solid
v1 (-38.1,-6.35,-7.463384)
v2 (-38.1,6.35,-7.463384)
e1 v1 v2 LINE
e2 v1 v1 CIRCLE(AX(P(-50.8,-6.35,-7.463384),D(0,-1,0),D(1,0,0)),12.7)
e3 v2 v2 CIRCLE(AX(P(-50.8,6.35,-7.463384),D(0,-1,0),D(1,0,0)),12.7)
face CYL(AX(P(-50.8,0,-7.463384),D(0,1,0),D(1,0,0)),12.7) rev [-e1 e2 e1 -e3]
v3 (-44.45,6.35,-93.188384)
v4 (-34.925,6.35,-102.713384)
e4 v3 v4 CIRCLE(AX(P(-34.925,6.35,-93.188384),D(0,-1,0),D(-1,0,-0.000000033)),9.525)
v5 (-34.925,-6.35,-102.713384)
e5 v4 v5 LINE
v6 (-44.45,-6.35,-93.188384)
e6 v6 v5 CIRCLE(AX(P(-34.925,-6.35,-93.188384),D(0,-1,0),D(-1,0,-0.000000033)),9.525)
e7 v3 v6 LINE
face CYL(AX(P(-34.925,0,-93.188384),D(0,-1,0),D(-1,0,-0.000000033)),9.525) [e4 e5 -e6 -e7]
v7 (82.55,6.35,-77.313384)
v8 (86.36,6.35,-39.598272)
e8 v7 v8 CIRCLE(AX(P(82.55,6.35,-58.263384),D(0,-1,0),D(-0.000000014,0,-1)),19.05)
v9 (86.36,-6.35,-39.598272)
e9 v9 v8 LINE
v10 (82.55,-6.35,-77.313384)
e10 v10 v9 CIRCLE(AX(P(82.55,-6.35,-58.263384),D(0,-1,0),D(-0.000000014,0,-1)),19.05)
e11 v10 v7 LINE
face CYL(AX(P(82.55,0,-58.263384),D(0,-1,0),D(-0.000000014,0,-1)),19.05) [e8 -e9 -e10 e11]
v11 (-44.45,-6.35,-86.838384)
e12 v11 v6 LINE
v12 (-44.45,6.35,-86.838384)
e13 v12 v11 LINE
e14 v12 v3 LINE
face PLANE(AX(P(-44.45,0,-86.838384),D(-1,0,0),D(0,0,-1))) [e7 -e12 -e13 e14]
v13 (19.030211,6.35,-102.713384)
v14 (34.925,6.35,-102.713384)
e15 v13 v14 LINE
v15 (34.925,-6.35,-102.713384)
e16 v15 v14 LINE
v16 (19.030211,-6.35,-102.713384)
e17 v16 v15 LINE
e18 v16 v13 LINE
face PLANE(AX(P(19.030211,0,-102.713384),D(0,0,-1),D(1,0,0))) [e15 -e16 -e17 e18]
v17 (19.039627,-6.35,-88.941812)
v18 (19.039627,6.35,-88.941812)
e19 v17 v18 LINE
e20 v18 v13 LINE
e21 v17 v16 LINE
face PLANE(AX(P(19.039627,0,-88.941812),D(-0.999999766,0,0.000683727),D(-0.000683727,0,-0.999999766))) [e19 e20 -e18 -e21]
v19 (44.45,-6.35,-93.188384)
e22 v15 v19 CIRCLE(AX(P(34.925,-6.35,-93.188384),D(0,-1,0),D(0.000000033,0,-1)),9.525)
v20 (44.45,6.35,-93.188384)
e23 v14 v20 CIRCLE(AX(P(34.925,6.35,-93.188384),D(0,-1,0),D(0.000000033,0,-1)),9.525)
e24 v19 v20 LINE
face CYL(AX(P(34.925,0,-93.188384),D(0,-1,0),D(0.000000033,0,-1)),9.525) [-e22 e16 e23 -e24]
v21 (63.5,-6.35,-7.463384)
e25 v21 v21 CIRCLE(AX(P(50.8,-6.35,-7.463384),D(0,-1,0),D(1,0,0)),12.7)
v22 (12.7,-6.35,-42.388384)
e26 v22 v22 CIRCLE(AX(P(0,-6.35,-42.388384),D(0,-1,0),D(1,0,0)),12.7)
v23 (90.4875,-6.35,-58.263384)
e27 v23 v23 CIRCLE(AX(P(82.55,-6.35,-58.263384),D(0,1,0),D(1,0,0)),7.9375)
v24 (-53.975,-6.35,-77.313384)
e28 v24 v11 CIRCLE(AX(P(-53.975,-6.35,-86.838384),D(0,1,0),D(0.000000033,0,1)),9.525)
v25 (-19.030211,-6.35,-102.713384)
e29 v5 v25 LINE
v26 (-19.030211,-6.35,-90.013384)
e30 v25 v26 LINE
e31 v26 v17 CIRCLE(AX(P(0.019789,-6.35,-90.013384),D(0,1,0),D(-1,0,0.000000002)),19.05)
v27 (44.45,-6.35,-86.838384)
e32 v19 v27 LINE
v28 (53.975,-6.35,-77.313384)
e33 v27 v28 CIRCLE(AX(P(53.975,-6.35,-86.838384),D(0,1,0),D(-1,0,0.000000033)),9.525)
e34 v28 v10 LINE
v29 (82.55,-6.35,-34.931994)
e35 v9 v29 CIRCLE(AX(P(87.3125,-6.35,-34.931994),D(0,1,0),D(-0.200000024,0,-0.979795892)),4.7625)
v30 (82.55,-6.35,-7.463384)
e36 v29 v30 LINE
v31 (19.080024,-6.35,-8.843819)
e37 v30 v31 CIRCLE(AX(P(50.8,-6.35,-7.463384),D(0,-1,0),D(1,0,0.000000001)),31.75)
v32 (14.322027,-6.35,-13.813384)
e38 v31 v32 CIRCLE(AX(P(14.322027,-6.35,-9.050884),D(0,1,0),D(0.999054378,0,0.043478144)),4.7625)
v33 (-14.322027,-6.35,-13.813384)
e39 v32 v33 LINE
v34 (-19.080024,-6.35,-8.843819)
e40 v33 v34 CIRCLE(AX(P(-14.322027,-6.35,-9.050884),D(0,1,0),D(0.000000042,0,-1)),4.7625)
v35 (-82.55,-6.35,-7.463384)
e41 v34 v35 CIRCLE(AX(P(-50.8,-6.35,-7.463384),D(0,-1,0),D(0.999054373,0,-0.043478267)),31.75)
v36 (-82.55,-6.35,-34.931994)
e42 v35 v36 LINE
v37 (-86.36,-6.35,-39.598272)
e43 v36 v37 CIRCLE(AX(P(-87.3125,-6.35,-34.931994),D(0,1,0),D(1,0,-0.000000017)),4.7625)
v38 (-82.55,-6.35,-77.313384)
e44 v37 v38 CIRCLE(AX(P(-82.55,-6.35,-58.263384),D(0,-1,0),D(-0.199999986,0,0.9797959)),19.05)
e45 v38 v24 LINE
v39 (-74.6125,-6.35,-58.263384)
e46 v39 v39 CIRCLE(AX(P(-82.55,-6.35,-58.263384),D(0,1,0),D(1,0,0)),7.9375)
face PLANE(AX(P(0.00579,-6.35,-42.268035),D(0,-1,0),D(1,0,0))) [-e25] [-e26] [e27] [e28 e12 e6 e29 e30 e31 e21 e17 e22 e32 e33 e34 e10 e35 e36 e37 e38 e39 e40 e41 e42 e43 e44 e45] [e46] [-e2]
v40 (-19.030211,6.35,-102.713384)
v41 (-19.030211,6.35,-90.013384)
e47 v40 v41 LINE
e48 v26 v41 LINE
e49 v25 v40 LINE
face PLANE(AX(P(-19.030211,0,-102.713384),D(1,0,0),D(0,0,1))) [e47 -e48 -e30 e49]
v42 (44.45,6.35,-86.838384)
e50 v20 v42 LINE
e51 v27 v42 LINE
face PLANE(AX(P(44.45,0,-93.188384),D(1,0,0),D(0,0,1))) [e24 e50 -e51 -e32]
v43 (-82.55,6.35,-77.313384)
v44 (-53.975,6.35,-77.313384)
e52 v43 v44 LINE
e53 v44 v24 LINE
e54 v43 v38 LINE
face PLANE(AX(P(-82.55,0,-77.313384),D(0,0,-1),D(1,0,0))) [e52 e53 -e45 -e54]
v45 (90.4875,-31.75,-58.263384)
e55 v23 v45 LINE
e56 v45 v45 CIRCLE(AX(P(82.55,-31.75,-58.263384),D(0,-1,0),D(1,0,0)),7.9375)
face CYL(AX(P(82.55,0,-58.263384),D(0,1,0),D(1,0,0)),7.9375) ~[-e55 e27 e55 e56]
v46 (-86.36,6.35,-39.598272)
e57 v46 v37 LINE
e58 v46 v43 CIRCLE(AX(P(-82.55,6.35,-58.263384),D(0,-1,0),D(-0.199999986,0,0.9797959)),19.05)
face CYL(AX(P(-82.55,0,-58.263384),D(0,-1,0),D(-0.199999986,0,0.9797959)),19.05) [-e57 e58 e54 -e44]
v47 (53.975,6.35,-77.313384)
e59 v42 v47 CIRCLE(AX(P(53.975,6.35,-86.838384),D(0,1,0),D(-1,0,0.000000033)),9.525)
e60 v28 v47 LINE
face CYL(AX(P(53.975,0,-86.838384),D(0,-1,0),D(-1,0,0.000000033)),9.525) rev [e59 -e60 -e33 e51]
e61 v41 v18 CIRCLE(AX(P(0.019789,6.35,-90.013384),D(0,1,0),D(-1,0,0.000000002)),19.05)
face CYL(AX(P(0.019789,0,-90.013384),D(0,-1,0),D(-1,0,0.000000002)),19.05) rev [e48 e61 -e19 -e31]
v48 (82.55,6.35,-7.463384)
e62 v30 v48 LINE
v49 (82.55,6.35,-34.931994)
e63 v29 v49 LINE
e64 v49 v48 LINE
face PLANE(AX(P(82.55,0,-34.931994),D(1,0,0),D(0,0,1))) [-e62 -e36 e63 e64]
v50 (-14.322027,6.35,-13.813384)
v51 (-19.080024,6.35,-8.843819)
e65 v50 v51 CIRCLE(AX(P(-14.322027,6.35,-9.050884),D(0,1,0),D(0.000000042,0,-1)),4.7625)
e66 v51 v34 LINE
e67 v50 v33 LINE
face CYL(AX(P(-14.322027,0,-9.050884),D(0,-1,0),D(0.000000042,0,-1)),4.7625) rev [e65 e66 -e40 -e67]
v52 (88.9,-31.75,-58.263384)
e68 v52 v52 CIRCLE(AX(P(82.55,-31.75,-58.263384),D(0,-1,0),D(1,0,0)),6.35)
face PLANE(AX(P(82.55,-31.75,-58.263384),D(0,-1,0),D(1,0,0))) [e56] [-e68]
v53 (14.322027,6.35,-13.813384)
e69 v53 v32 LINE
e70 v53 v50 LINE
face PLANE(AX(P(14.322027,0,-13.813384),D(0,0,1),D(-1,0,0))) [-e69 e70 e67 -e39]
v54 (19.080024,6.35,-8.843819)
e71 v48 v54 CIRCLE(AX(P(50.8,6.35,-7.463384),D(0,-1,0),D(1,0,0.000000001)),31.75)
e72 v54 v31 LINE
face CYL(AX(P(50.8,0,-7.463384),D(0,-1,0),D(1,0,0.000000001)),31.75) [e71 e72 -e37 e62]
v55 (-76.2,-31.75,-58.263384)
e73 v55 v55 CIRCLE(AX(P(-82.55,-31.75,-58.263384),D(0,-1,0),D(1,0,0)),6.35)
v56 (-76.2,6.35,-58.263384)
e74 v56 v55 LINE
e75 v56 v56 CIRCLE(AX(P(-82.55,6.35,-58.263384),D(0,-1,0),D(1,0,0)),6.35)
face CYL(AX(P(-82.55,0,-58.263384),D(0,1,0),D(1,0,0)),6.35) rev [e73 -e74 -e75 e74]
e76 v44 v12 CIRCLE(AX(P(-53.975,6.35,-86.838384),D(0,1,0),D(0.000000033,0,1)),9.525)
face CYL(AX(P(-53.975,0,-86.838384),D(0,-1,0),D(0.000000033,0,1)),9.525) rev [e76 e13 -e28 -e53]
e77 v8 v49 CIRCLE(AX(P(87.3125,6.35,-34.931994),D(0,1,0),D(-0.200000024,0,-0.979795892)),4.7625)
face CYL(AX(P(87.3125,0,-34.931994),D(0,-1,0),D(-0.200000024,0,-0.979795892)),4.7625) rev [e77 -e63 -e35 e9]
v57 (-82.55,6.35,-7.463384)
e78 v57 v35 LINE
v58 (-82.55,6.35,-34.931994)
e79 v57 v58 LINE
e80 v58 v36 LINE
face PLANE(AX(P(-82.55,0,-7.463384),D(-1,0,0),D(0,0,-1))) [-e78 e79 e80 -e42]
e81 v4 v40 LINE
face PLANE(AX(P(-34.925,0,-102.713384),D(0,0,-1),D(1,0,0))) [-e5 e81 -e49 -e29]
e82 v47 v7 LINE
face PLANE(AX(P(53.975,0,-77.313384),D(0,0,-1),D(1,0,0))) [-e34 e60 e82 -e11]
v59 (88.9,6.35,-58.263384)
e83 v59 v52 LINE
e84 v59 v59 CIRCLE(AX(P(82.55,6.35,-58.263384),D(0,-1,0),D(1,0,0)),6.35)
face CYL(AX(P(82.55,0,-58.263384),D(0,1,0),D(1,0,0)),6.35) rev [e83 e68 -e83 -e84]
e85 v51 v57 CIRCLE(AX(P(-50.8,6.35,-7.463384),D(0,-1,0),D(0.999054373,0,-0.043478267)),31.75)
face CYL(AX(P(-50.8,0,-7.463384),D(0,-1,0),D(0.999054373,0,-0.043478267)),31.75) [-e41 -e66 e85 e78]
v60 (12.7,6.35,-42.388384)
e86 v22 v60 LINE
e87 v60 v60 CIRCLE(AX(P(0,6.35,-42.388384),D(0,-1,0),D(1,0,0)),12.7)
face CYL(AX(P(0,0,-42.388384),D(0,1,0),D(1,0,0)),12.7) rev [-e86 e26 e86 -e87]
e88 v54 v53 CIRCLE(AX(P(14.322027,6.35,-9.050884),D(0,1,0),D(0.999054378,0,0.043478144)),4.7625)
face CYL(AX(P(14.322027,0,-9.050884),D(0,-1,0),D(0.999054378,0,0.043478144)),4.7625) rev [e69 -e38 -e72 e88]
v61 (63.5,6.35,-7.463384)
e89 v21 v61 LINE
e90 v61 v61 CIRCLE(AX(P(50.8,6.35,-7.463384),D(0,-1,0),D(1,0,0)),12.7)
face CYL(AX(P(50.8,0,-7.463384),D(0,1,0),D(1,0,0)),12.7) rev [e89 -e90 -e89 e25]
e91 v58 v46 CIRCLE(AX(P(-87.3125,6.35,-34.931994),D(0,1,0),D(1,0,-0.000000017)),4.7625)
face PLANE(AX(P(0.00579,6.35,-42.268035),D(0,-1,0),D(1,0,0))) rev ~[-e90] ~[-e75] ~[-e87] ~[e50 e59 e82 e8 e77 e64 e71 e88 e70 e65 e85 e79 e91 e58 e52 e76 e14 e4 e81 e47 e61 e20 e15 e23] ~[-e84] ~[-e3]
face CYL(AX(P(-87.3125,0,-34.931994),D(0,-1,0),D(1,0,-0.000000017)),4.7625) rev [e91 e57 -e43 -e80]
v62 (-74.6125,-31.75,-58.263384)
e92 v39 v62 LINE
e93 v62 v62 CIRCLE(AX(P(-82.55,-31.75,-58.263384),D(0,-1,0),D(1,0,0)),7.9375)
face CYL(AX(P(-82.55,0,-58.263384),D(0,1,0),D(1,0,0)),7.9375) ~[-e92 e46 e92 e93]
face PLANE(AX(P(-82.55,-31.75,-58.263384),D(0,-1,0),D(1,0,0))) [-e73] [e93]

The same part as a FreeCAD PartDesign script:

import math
import FreeCAD as App
import Part
import Sketcher
from FreeCAD import Vector
Q = App.Units.Quantity

doc = App.newDocument("Part")
body = doc.addObject("PartDesign::Body", "Body")

# Sketch on XZ plane
sketch1 = doc.addObject("Sketcher::SketchObject", "Sketch")
body.addObject(sketch1)
sketch1.AttachmentSupport = (doc.XZ_Plane, [""])
sketch1.MapMode = "FlatFace"
sketch1.addGeometry(Part.ArcOfCircle(Part.Circle(Vector(50.8, -7.5, 0), Vector(0, 0, 1), 31.7), math.radians(0), math.radians(182)), False)
sketch1.addGeometry(Part.ArcOfCircle(Part.Circle(Vector(14.3, -9.1, 0), Vector(0, 0, 1), 4.8), math.radians(-90), math.radians(2)), False)
sketch1.addGeometry(Part.LineSegment(Vector(14.3, -13.8, 0), Vector(-14.3, -13.8, 0)), False)
sketch1.addGeometry(Part.ArcOfCircle(Part.Circle(Vector(-14.3, -9.1, 0), Vector(0, 0, 1), 4.8), math.radians(178), math.radians(270)), False)
sketch1.addGeometry(Part.ArcOfCircle(Part.Circle(Vector(-50.8, -7.5, 0), Vector(0, 0, 1), 31.7), math.radians(-2), math.radians(180)), False)
sketch1.addGeometry(Part.LineSegment(Vector(-82.5, -7.5, 0), Vector(-82.5, -34.9, 0)), False)
sketch1.addGeometry(Part.ArcOfCircle(Part.Circle(Vector(-87.3, -34.9, 0), Vector(0, 0, 1), 4.8), math.radians(-78), math.radians(0)), False)
sketch1.addGeometry(Part.ArcOfCircle(Part.Circle(Vector(-82.6, -58.3, 0), Vector(0, 0, 1), 19.1), math.radians(102), math.radians(270)), False)
sketch1.addGeometry(Part.LineSegment(Vector(-82.5, -77.3, 0), Vector(-54, -77.3, 0)), False)
sketch1.addGeometry(Part.ArcOfCircle(Part.Circle(Vector(-54, -86.8, 0), Vector(0, 0, 1), 9.5), math.radians(0), math.radians(90)), False)
sketch1.addGeometry(Part.LineSegment(Vector(-44.5, -86.8, 0), Vector(-44.5, -93.2, 0)), False)
sketch1.addGeometry(Part.ArcOfCircle(Part.Circle(Vector(-34.9, -93.2, 0), Vector(0, 0, 1), 9.5), math.radians(-180), math.radians(-90)), False)
sketch1.addGeometry(Part.LineSegment(Vector(-34.9, -102.7, 0), Vector(-19, -102.7, 0)), False)
sketch1.addGeometry(Part.LineSegment(Vector(-19, -102.7, 0), Vector(-19, -90, 0)), False)
sketch1.addGeometry(Part.ArcOfCircle(Part.Circle(Vector(0, -90, 0), Vector(0, 0, 1), 19.1), math.radians(3), math.radians(180)), False)
sketch1.addGeometry(Part.LineSegment(Vector(19, -88.9, 0), Vector(19, -102.7, 0)), False)
sketch1.addGeometry(Part.LineSegment(Vector(19, -102.7, 0), Vector(34.9, -102.7, 0)), False)
sketch1.addGeometry(Part.ArcOfCircle(Part.Circle(Vector(34.9, -93.2, 0), Vector(0, 0, 1), 9.5), math.radians(-90), math.radians(0)), False)
sketch1.addGeometry(Part.LineSegment(Vector(44.5, -93.2, 0), Vector(44.5, -86.8, 0)), False)
sketch1.addGeometry(Part.ArcOfCircle(Part.Circle(Vector(54, -86.8, 0), Vector(0, 0, 1), 9.5), math.radians(90), math.radians(180)), False)
sketch1.addGeometry(Part.LineSegment(Vector(54, -77.3, 0), Vector(82.5, -77.3, 0)), False)
sketch1.addGeometry(Part.ArcOfCircle(Part.Circle(Vector(82.6, -58.3, 0), Vector(0, 0, 1), 19.1), math.radians(-90), math.radians(78)), False)
sketch1.addGeometry(Part.ArcOfCircle(Part.Circle(Vector(87.3, -34.9, 0), Vector(0, 0, 1), 4.8), math.radians(-180), math.radians(-102)), False)
sketch1.addGeometry(Part.LineSegment(Vector(82.5, -34.9, 0), Vector(82.5, -7.5, 0)), False)
sketch1.addGeometry(Part.Circle(Vector(-82.5, -58.3, 0), Vector(0, 0, 1), 6.3), False)
sketch1.addGeometry(Part.Circle(Vector(82.5, -58.3, 0), Vector(0, 0, 1), 6.3), False)
sketch1.addGeometry(Part.Circle(Vector(0, -42.4, 0), Vector(0, 0, 1), 12.7), False)
sketch1.addGeometry(Part.Circle(Vector(-50.8, -7.5, 0), Vector(0, 0, 1), 12.7), False)
sketch1.addGeometry(Part.Circle(Vector(50.8, -7.5, 0), Vector(0, 0, 1), 12.7), False)
sketch1.addConstraint(Sketcher.Constraint("Tangent", 0, 2, 1, 2))
sketch1.addConstraint(Sketcher.Constraint("Tangent", 1, 1, 2, 1))
sketch1.addConstraint(Sketcher.Constraint("Tangent", 2, 2, 3, 2))
sketch1.addConstraint(Sketcher.Constraint("Tangent", 3, 1, 4, 1))
sketch1.addConstraint(Sketcher.Constraint("Tangent", 4, 2, 5, 1))
sketch1.addConstraint(Sketcher.Constraint("Tangent", 5, 2, 6, 2))
sketch1.addConstraint(Sketcher.Constraint("Tangent", 6, 1, 7, 1))
sketch1.addConstraint(Sketcher.Constraint("Tangent", 7, 2, 8, 1))
sketch1.addConstraint(Sketcher.Constraint("Tangent", 8, 2, 9, 2))
sketch1.addConstraint(Sketcher.Constraint("Tangent", 9, 1, 10, 1))
sketch1.addConstraint(Sketcher.Constraint("Tangent", 10, 2, 11, 1))
sketch1.addConstraint(Sketcher.Constraint("Tangent", 11, 2, 12, 1))
sketch1.addConstraint(Sketcher.Constraint("Coincident", 12, 2, 13, 1))
sketch1.addConstraint(Sketcher.Constraint("Tangent", 13, 2, 14, 2))
sketch1.addConstraint(Sketcher.Constraint("Coincident", 14, 1, 15, 1))
sketch1.addConstraint(Sketcher.Constraint("Coincident", 15, 2, 16, 1))
sketch1.addConstraint(Sketcher.Constraint("Tangent", 16, 2, 17, 1))
sketch1.addConstraint(Sketcher.Constraint("Tangent", 17, 2, 18, 1))
sketch1.addConstraint(Sketcher.Constraint("Tangent", 18, 2, 19, 2))
sketch1.addConstraint(Sketcher.Constraint("Tangent", 19, 1, 20, 1))
sketch1.addConstraint(Sketcher.Constraint("Tangent", 20, 2, 21, 1))
sketch1.addConstraint(Sketcher.Constraint("Tangent", 21, 2, 22, 2))
sketch1.addConstraint(Sketcher.Constraint("Tangent", 22, 1, 23, 1))
sketch1.addConstraint(Sketcher.Constraint("Tangent", 23, 2, 0, 1))
sketch1.addConstraint(Sketcher.Constraint("Horizontal", 2))
sketch1.addConstraint(Sketcher.Constraint("Vertical", 5))
sketch1.addConstraint(Sketcher.Constraint("Horizontal", 8))
sketch1.addConstraint(Sketcher.Constraint("Vertical", 10))
sketch1.addConstraint(Sketcher.Constraint("Horizontal", 12))
sketch1.addConstraint(Sketcher.Constraint("Vertical", 13))
sketch1.addConstraint(Sketcher.Constraint("Horizontal", 16))
sketch1.addConstraint(Sketcher.Constraint("Vertical", 18))
sketch1.addConstraint(Sketcher.Constraint("Horizontal", 20))
sketch1.addConstraint(Sketcher.Constraint("Vertical", 23))
sketch1.addConstraint(Sketcher.Constraint("Coincident", 24, 3, 7, 3))
sketch1.addConstraint(Sketcher.Constraint("Coincident", 25, 3, 21, 3))
sketch1.addConstraint(Sketcher.Constraint("Coincident", 27, 3, 4, 3))
sketch1.addConstraint(Sketcher.Constraint("Coincident", 28, 3, 0, 3))
sketch1.addConstraint(Sketcher.Constraint("Equal", 1, 3))
sketch1.addConstraint(Sketcher.Constraint("Equal", 0, 4))
sketch1.addConstraint(Sketcher.Constraint("Equal", 3, 6))
sketch1.addConstraint(Sketcher.Constraint("Equal", 9, 11))
sketch1.addConstraint(Sketcher.Constraint("Equal", 7, 14))
sketch1.addConstraint(Sketcher.Constraint("Equal", 11, 17))
sketch1.addConstraint(Sketcher.Constraint("Equal", 17, 19))
sketch1.addConstraint(Sketcher.Constraint("Equal", 14, 21))
sketch1.addConstraint(Sketcher.Constraint("Equal", 6, 22))
sketch1.addConstraint(Sketcher.Constraint("Equal", 24, 25))
sketch1.addConstraint(Sketcher.Constraint("Equal", 26, 27))
sketch1.addConstraint(Sketcher.Constraint("Equal", 27, 28))
sketch1.addConstraint(Sketcher.Constraint("Symmetric", 0, 3, 4, 3, -2))
sketch1.addConstraint(Sketcher.Constraint("Symmetric", 11, 3, 17, 3, -2))
sketch1.addConstraint(Sketcher.Constraint("Symmetric", 7, 3, 21, 3, -2))
sketch1.addConstraint(Sketcher.Constraint("PointOnObject", 26, 3, -2))
sketch1.addConstraint(Sketcher.Constraint("Vertical", 24, 3, 4, 2))
sketch1.addConstraint(Sketcher.Constraint("Equal", 12, 16))
sketch1.addConstraint(Sketcher.Constraint("Diameter", 26, Q("1 in")))
sketch1.addConstraint(Sketcher.Constraint("Diameter", 24, Q("0.5 in")))
sketch1.addConstraint(Sketcher.Constraint("Radius", 0, Q("1.25 in")))
sketch1.addConstraint(Sketcher.Constraint("Radius", 7, Q("0.75 in")))
sketch1.addConstraint(Sketcher.Constraint("DistanceY", 13, 1, 13, 2, Q("0.5 in")))
sketch1.addConstraint(Sketcher.Constraint("DistanceX", -1, 1, 0, 3, Q("2 in")))
sketch1.addConstraint(Sketcher.Constraint("Radius", 1, Q("0.1875 in")))
sketch1.addConstraint(Sketcher.Constraint("Radius", 9, Q("0.375 in")))
sketch1.addConstraint(Sketcher.Constraint("DistanceY", 7, 3, 4, 3, Q("2 in")))
sketch1.addConstraint(Sketcher.Constraint("DistanceY", 11, 3, 26, 3, Q("2 in")))
sketch1.addConstraint(Sketcher.Constraint("DistanceY", 11, 2, 8, 2, Q("1 in")))
sketch1.addConstraint(Sketcher.Constraint("DistanceX", 9, 3, 17, 3, Q("3.5 in")))
sketch1.addConstraint(Sketcher.Constraint("DistanceY", 1, 1, 28, 3, Q("0.25 in")))
sketch1.addConstraint(Sketcher.Constraint("DistanceX", 12, 1, 12, 2, 15.894789))
sketch1.addConstraint(Sketcher.Constraint("DistanceY", 0, 2, -1, 1, 8.843819))
sketch1.addConstraint(Sketcher.Constraint("DistanceY", 14, 1, -1, 1, 88.941812))
pad1 = doc.addObject("PartDesign::Pad", "Pad")
body.addObject(pad1)
pad1.Profile = sketch1
pad1.Length = Q("0.5 in")
pad1.Midplane = True

# Sketch on XZ plane
sketch2 = doc.addObject("Sketcher::SketchObject", "Sketch001")
body.addObject(sketch2)
sketch2.AttachmentSupport = (doc.XZ_Plane, [""])
sketch2.MapMode = "FlatFace"
sketch2.addGeometry(Part.Circle(Vector(-83, -58, 0), Vector(0, 0, 1), 8), False)
sketch2.addGeometry(Part.Circle(Vector(-83, -58, 0), Vector(0, 0, 1), 6), False)
sketch2.addGeometry(Part.Circle(Vector(83, -58, 0), Vector(0, 0, 1), 8), False)
sketch2.addGeometry(Part.Circle(Vector(83, -58, 0), Vector(0, 0, 1), 6), False)
sketch2.addConstraint(Sketcher.Constraint("Coincident", 1, 3, 0, 3))
sketch2.addConstraint(Sketcher.Constraint("Coincident", 3, 3, 2, 3))
sketch2.addConstraint(Sketcher.Constraint("Equal", 0, 2))
sketch2.addConstraint(Sketcher.Constraint("Equal", 1, 3))
sketch2.addConstraint(Sketcher.Constraint("Symmetric", 0, 3, 2, 3, -2))
sketch2.addConstraint(Sketcher.Constraint("Diameter", 1, Q("0.5 in")))
sketch2.addConstraint(Sketcher.Constraint("Diameter", 0, Q("0.625 in")))
sketch2.addConstraint(Sketcher.Constraint("DistanceX", 0, 3, 2, 3, Q("6.5 in")))
sketch2.addConstraint(Sketcher.Constraint("DistanceY", 0, 3, -1, 1, 58.263384))
pad2 = doc.addObject("PartDesign::Pad", "Pad001")
body.addObject(pad2)
pad2.Profile = sketch2
pad2.Length = Q("1.25 in")

doc.recompute()
